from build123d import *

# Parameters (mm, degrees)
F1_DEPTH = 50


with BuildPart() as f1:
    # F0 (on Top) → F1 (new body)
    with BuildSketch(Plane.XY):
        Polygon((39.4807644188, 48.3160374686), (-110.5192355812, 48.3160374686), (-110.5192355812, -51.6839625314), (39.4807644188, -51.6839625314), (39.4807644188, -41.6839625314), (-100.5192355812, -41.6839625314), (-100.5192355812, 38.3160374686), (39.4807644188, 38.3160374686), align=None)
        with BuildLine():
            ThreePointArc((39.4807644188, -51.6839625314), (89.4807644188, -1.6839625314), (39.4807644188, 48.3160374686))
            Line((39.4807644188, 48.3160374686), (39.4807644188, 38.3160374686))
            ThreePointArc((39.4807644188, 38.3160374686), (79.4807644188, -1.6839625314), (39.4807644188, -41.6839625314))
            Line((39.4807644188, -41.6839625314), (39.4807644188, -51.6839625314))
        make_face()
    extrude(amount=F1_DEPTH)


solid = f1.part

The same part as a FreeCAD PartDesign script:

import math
import FreeCAD as App
import Part
import Sketcher

V = App.Vector
Q = App.Units.Quantity

doc = App.newDocument("Part")
body = doc.addObject("PartDesign::Body", "Body")

# Sketch on XY plane
sketch1 = doc.addObject("Sketcher::SketchObject", "Sketch")
body.addObject(sketch1)
sketch1.AttachmentSupport = (doc.XY_Plane, [""])
sketch1.MapMode = "FlatFace"
sketch1.addGeometry(Part.LineSegment(V(39.480764, 48.316037, 0), V(-110.519236, 48.316037, 0)), False)
sketch1.addGeometry(Part.LineSegment(V(-110.519236, 48.316037, 0), V(-110.519236, -51.683963, 0)), False)
sketch1.addGeometry(Part.LineSegment(V(-110.519236, -51.683963, 0), V(39.480764, -51.683963, 0)), False)
sketch1.addGeometry(Part.ArcOfCircle(Part.Circle(V(39.480764, -1.683963, 0), V(0, 0, 1), 50), math.radians(-90), math.radians(90)), False)
sketch1.addGeometry(Part.LineSegment(V(39.480764, -41.683963, 0), V(-100.519236, -41.683963, 0)), False)
sketch1.addGeometry(Part.LineSegment(V(-100.519236, -41.683963, 0), V(-100.519236, 38.316037, 0)), False)
sketch1.addGeometry(Part.LineSegment(V(-100.519236, 38.316037, 0), V(39.480764, 38.316037, 0)), False)
sketch1.addGeometry(Part.ArcOfCircle(Part.Circle(V(39.480764, -1.683963, 0), V(0, 0, 1), 40), math.radians(-90), math.radians(90)), False)
sketch1.addConstraint(Sketcher.Constraint("Coincident", 0, 2, 1, 1))
sketch1.addConstraint(Sketcher.Constraint("Coincident", 1, 2, 2, 1))
sketch1.addConstraint(Sketcher.Constraint("Tangent", 2, 2, 3, 1))
sketch1.addConstraint(Sketcher.Constraint("Tangent", 3, 2, 0, 1))
sketch1.addConstraint(Sketcher.Constraint("Coincident", 4, 2, 5, 1))
sketch1.addConstraint(Sketcher.Constraint("Coincident", 5, 2, 6, 1))
sketch1.addConstraint(Sketcher.Constraint("Tangent", 6, 2, 7, 2))
sketch1.addConstraint(Sketcher.Constraint("Tangent", 7, 1, 4, 1))
sketch1.addConstraint(Sketcher.Constraint("Horizontal", 0))
sketch1.addConstraint(Sketcher.Constraint("Vertical", 1))
sketch1.addConstraint(Sketcher.Constraint("Horizontal", 2))
sketch1.addConstraint(Sketcher.Constraint("Horizontal", 4))
sketch1.addConstraint(Sketcher.Constraint("Vertical", 5))
sketch1.addConstraint(Sketcher.Constraint("Horizontal", 6))
sketch1.addConstraint(Sketcher.Constraint("Coincident", 7, 3, 3, 3))
sketch1.addConstraint(Sketcher.Constraint("Radius", 3, Q("50 mm")))
sketch1.addConstraint(Sketcher.Constraint("Radius", 7, Q("40 mm")))
sketch1.addConstraint(Sketcher.Constraint("DistanceX", 0, 2, 0, 1, Q("150 mm")))
sketch1.addConstraint(Sketcher.Constraint("DistanceX", 4, 2, 4, 1, Q("140 mm")))
sketch1.addConstraint(Sketcher.Constraint("DistanceX", -1, 1, 3, 3, Q("39.480764 mm")))
sketch1.addConstraint(Sketcher.Constraint("DistanceY", 3, 3, -1, 1, Q("1.683963 mm")))
pad1 = doc.addObject("PartDesign::Pad", "Pad")
body.addObject(pad1)
pad1.Profile = sketch1
pad1.Length = 50

doc.recompute()
